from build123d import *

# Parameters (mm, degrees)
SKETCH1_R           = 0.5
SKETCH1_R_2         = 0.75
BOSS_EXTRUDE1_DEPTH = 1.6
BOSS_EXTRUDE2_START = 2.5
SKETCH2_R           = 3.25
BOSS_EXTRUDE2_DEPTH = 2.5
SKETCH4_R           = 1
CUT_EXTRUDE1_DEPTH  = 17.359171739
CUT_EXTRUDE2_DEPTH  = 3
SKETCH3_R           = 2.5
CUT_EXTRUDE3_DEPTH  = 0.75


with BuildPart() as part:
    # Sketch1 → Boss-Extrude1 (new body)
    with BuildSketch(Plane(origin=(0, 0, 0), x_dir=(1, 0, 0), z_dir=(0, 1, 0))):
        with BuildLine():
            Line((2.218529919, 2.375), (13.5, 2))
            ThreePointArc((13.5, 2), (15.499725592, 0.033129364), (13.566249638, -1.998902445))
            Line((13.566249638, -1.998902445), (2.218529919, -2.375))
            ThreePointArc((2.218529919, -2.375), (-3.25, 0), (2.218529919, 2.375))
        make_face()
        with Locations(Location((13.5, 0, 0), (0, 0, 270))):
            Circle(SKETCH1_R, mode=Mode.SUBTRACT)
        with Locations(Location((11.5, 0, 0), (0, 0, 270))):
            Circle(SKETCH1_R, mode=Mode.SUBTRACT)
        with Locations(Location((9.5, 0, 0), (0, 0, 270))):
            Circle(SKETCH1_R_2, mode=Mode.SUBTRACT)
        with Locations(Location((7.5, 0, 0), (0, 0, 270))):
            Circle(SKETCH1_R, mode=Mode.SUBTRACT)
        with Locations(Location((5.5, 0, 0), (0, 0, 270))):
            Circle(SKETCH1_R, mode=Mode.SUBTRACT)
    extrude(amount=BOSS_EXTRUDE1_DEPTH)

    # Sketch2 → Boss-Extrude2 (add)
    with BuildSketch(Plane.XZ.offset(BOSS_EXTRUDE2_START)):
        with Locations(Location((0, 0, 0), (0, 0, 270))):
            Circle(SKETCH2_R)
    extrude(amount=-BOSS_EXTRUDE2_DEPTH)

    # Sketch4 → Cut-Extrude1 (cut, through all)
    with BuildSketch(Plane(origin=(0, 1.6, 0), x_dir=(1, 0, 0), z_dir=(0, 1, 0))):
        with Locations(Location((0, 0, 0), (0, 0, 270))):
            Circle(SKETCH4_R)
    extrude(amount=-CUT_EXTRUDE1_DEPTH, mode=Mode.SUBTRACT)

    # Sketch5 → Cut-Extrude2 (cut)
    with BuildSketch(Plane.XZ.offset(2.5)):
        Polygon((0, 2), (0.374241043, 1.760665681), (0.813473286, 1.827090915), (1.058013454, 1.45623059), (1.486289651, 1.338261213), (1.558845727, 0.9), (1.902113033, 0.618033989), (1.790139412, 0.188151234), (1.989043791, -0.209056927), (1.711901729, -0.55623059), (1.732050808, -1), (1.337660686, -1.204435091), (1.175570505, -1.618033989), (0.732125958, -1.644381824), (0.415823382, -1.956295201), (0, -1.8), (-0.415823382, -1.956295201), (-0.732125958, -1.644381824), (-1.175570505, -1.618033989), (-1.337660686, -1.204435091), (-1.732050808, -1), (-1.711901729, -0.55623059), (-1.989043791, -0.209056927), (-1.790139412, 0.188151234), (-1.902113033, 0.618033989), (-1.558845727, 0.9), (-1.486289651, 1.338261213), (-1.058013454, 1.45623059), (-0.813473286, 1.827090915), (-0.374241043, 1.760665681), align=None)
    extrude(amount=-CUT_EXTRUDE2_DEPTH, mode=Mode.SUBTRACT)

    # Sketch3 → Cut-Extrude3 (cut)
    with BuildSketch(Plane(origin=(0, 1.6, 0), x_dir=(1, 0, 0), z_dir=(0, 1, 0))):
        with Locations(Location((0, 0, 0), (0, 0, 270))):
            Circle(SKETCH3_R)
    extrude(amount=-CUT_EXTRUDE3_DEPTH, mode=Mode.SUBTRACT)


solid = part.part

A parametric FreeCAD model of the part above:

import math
import FreeCAD as App
import Part
import Sketcher

V = App.Vector

doc = App.newDocument("Part")
params = doc.addObject("Spreadsheet::Sheet", "Params")
for row, (alias, value) in enumerate([
    ("sketch1_diameter", "1 mm"),
    ("sketch1_radius", "2 mm"),
    ("sketch1_diameter2", "1.5 mm"),
    ("sketch1_radius2", "3.25 mm"),
    ("pad1_length", "1.6 mm"),
    ("sketch2_diameter", "6.5 mm"),
    ("pad2_length", "2.5 mm"),
    ("sketch3_diameter", "2 mm"),
    ("pocket2_length", "3 mm"),
    ("sketch5_diameter", "5 mm"),
    ("pocket3_length", "0.75 mm"),
], start=1):
    params.set(f"A{row}", alias)
    params.set(f"B{row}", "=" + value)
    params.setAlias(f"B{row}", alias)

body = doc.addObject("PartDesign::Body", "Body")

# Sketch on XZ plane
sketch1 = body.newObject("Sketcher::SketchObject", "Sketch")
sketch1.AttachmentSupport = (doc.getObject("XZ_Plane"), [""])
sketch1.MapMode = "FlatFace"
sketch1.addGeometry([
    Part.LineSegment(V(13.5, -2, 0), V(2.2, -2.4, 0)),  # 0
    Part.ArcOfCircle(Part.Circle(V(0, 0, 0), V(0, 0, 1), 3.2), math.radians(47), math.radians(313)),  # 1
    Part.LineSegment(V(2.2, 2.4, 0), V(13.6, 2, 0)),  # 2
    Part.ArcOfCircle(Part.Circle(V(13.5, 0, 0), V(0, 0, 1), 2), math.radians(-90), math.radians(88)),  # 3
    Part.Circle(V(13.5, 0, 0), V(0, 0, 1), 0.5),  # 4
    Part.Circle(V(11.5, 0, 0), V(0, 0, 1), 0.5),  # 5
    Part.Circle(V(9.5, 0, 0), V(0, 0, 1), 0.8),  # 6
    Part.Circle(V(7.5, 0, 0), V(0, 0, 1), 0.5),  # 7
    Part.Circle(V(5.5, 0, 0), V(0, 0, 1), 0.5),  # 8
], False)
sketch1.addConstraint([
    Sketcher.Constraint("Coincident", 0, 2, 1, 2),
    Sketcher.Constraint("Coincident", 1, 1, 2, 1),
    Sketcher.Constraint("Tangent", 2, 2, 3, 2),
    Sketcher.Constraint("Coincident", 3, 1, 0, 1),
    Sketcher.Constraint("Coincident", 1, 3, -1, 1),
    Sketcher.Constraint("Coincident", 4, 3, 3, 3),
    Sketcher.Constraint("Equal", 4, 5),
    Sketcher.Constraint("Equal", 5, 7),
    Sketcher.Constraint("Equal", 7, 8),
    Sketcher.Constraint("PointOnObject", 3, 3, -1),
    Sketcher.Constraint("PointOnObject", 5, 3, -1),
    Sketcher.Constraint("PointOnObject", 6, 3, -1),
    Sketcher.Constraint("PointOnObject", 7, 3, -1),
    Sketcher.Constraint("PointOnObject", 8, 3, -1),
    Sketcher.Constraint("Vertical", 0, 2, 1, 1),
    Sketcher.Constraint("Vertical", 4, 3, 3, 1),
    Sketcher.Constraint("Diameter", 4, 1.0),
    Sketcher.Constraint("Radius", 3, 2.0),
    Sketcher.Constraint("Diameter", 6, 1.5),
    Sketcher.Constraint("Radius", 1, 3.25),
    Sketcher.Constraint("DistanceX", 5, 3, 3, 3, 2.0),
    Sketcher.Constraint("DistanceX", 6, 3, 5, 3, 2.0),
    Sketcher.Constraint("DistanceX", 7, 3, 6, 3, 2.0),
    Sketcher.Constraint("DistanceX", 8, 3, 7, 3, 2.0),
    Sketcher.Constraint("DistanceX", -1, 1, 3, 3, 13.5),
    Sketcher.Constraint("DistanceY", 0, 2, 1, 1, 4.75),
])
sketch1.setExpression("Constraints[16]", "Params.sketch1_diameter")
sketch1.setExpression("Constraints[17]", "Params.sketch1_radius")
sketch1.setExpression("Constraints[18]", "Params.sketch1_diameter2")
sketch1.setExpression("Constraints[19]", "Params.sketch1_radius2")
pad1 = body.newObject("PartDesign::Pad", "Pad")
pad1.Profile = sketch1
pad1.setExpression("Length", "Params.pad1_length")
pad1.Reversed = True

# Sketch on XZ plane
sketch2 = body.newObject("Sketcher::SketchObject", "Sketch001")
sketch2.AttachmentSupport = (doc.getObject("XZ_Plane"), [""])
sketch2.MapMode = "FlatFace"
sketch2.AttachmentOffset = App.Placement(V(0, 0, 2.5), App.Rotation())
sketch2.addGeometry(Part.Circle(V(0, 0, 0), V(0, 0, 1), 3.2), False)
sketch2.addConstraint([
    Sketcher.Constraint("Coincident", 0, 3, -1, 1),
    Sketcher.Constraint("Diameter", 0, 6.5),
])
sketch2.setExpression("Constraints[1]", "Params.sketch2_diameter")
pad2 = body.newObject("PartDesign::Pad", "Pad001")
pad2.Profile = sketch2
pad2.setExpression("Length", "Params.pad2_length")
pad2.Reversed = True

# Sketch on XZ plane
sketch3 = body.newObject("Sketcher::SketchObject", "Sketch002")
sketch3.AttachmentSupport = (doc.getObject("XZ_Plane"), [""])
sketch3.MapMode = "FlatFace"
sketch3.AttachmentOffset = App.Placement(V(0, 0, -1.6), App.Rotation())
sketch3.addGeometry(Part.Circle(V(0, 0, 0), V(0, 0, 1), 1), False)
sketch3.addConstraint([
    Sketcher.Constraint("Coincident", 0, 3, -1, 1),
    Sketcher.Constraint("Diameter", 0, 2.0),
])
sketch3.setExpression("Constraints[1]", "Params.sketch3_diameter")
pocket1 = body.newObject("PartDesign::Pocket", "Pocket")
pocket1.Profile = sketch3
pocket1.Type = "ThroughAll"
pocket1.Reversed = True

# Sketch on XZ plane
sketch4 = body.newObject("Sketcher::SketchObject", "Sketch003")
sketch4.AttachmentSupport = (doc.getObject("XZ_Plane"), [""])
sketch4.MapMode = "FlatFace"
sketch4.AttachmentOffset = App.Placement(V(0, 0, 2.5), App.Rotation())
sketch4.addGeometry([
    Part.LineSegment(V(0.374241, 1.760666, 0), V(0, 2, 0)),  # 0
    Part.LineSegment(V(0, 2, 0), V(-0.374241, 1.760666, 0)),  # 1
    Part.LineSegment(V(-0.374241, 1.760666, 0), V(-0.813473, 1.827091, 0)),  # 2
    Part.LineSegment(V(-0.813473, 1.827091, 0), V(-1.058013, 1.456231, 0)),  # 3
    Part.LineSegment(V(-1.058013, 1.456231, 0), V(-1.48629, 1.338261, 0)),  # 4
    Part.LineSegment(V(-1.48629, 1.338261, 0), V(-1.558846, 0.9, 0)),  # 5
    Part.LineSegment(V(-1.558846, 0.9, 0), V(-1.902113, 0.618034, 0)),  # 6
    Part.LineSegment(V(-1.902113, 0.618034, 0), V(-1.790139, 0.188151, 0)),  # 7
    Part.LineSegment(V(-1.790139, 0.188151, 0), V(-1.989044, -0.209057, 0)),  # 8
    Part.LineSegment(V(-1.989044, -0.209057, 0), V(-1.711902, -0.556231, 0)),  # 9
    Part.LineSegment(V(-1.711902, -0.556231, 0), V(-1.732051, -1, 0)),  # 10
    Part.LineSegment(V(-1.732051, -1, 0), V(-1.337661, -1.204435, 0)),  # 11
    Part.LineSegment(V(-1.337661, -1.204435, 0), V(-1.175571, -1.618034, 0)),  # 12
    Part.LineSegment(V(-1.175571, -1.618034, 0), V(-0.732126, -1.644382, 0)),  # 13
    Part.LineSegment(V(-0.732126, -1.644382, 0), V(-0.415823, -1.956295, 0)),  # 14
    Part.LineSegment(V(-0.415823, -1.956295, 0), V(0, -1.8, 0)),  # 15
    Part.LineSegment(V(0, -1.8, 0), V(0.415823, -1.956295, 0)),  # 16
    Part.LineSegment(V(0.415823, -1.956295, 0), V(0.732126, -1.644382, 0)),  # 17
    Part.LineSegment(V(0.732126, -1.644382, 0), V(1.175571, -1.618034, 0)),  # 18
    Part.LineSegment(V(1.175571, -1.618034, 0), V(1.337661, -1.204435, 0)),  # 19
    Part.LineSegment(V(1.337661, -1.204435, 0), V(1.732051, -1, 0)),  # 20
    Part.LineSegment(V(1.732051, -1, 0), V(1.711902, -0.556231, 0)),  # 21
    Part.LineSegment(V(1.711902, -0.556231, 0), V(1.989044, -0.209057, 0)),  # 22
    Part.LineSegment(V(1.989044, -0.209057, 0), V(1.790139, 0.188151, 0)),  # 23
    Part.LineSegment(V(1.790139, 0.188151, 0), V(1.902113, 0.618034, 0)),  # 24
    Part.LineSegment(V(1.902113, 0.618034, 0), V(1.558846, 0.9, 0)),  # 25
    Part.LineSegment(V(1.558846, 0.9, 0), V(1.48629, 1.338261, 0)),  # 26
    Part.LineSegment(V(1.48629, 1.338261, 0), V(1.058013, 1.456231, 0)),  # 27
    Part.LineSegment(V(1.058013, 1.456231, 0), V(0.813473, 1.827091, 0)),  # 28
    Part.LineSegment(V(0.813473, 1.827091, 0), V(0.374241, 1.760666, 0)),  # 29
], False)
sketch4.addConstraint([
    Sketcher.Constraint("Coincident", 0, 2, 1, 1),
    Sketcher.Constraint("Coincident", 1, 2, 2, 1),
    Sketcher.Constraint("Coincident", 2, 2, 3, 1),
    Sketcher.Constraint("Coincident", 3, 2, 4, 1),
    Sketcher.Constraint("Coincident", 4, 2, 5, 1),
    Sketcher.Constraint("Coincident", 5, 2, 6, 1),
    Sketcher.Constraint("Coincident", 6, 2, 7, 1),
    Sketcher.Constraint("Coincident", 7, 2, 8, 1),
    Sketcher.Constraint("Coincident", 8, 2, 9, 1),
    Sketcher.Constraint("Coincident", 9, 2, 10, 1),
    Sketcher.Constraint("Coincident", 10, 2, 11, 1),
    Sketcher.Constraint("Coincident", 11, 2, 12, 1),
    Sketcher.Constraint("Coincident", 12, 2, 13, 1),
    Sketcher.Constraint("Coincident", 13, 2, 14, 1),
    Sketcher.Constraint("Coincident", 14, 2, 15, 1),
    Sketcher.Constraint("Coincident", 15, 2, 16, 1),
    Sketcher.Constraint("Coincident", 16, 2, 17, 1),
    Sketcher.Constraint("Coincident", 17, 2, 18, 1),
    Sketcher.Constraint("Coincident", 18, 2, 19, 1),
    Sketcher.Constraint("Coincident", 19, 2, 20, 1),
    Sketcher.Constraint("Coincident", 20, 2, 21, 1),
    Sketcher.Constraint("Coincident", 21, 2, 22, 1),
    Sketcher.Constraint("Coincident", 22, 2, 23, 1),
    Sketcher.Constraint("Coincident", 23, 2, 24, 1),
    Sketcher.Constraint("Coincident", 24, 2, 25, 1),
    Sketcher.Constraint("Coincident", 25, 2, 26, 1),
    Sketcher.Constraint("Coincident", 26, 2, 27, 1),
    Sketcher.Constraint("Coincident", 27, 2, 28, 1),
    Sketcher.Constraint("Coincident", 28, 2, 29, 1),
    Sketcher.Constraint("Coincident", 29, 2, 0, 1),
    Sketcher.Constraint("PointOnObject", 0, 2, -2),
    Sketcher.Constraint("PointOnObject", 15, 2, -2),
    Sketcher.Constraint("DistanceY", -1, 1, 0, 2, 2.0),
    Sketcher.Constraint("DistanceY", 10, 2, -1, 1, 1.0),
    Sketcher.Constraint("DistanceY", 20, 2, -1, 1, 1.0),
    Sketcher.Constraint("DistanceY", -1, 1, 5, 2, 0.9),
    Sketcher.Constraint("DistanceY", 15, 2, -1, 1, 1.8),
    Sketcher.Constraint("DistanceY", -1, 1, 25, 2, 0.9),
    Sketcher.Constraint("DistanceX", 9, 2, -1, 1, 1.711902),
    Sketcher.Constraint("DistanceX", -1, 1, 21, 2, 1.711902),
    Sketcher.Constraint("DistanceX", 6, 2, 3, 2, 0.8441),
    Sketcher.Constraint("DistanceX", 8, 2, 5, 2, 0.430198),
    Sketcher.Constraint("DistanceY", 12, 2, 11, 2, 0.413599),
    Sketcher.Constraint("DistanceY", 18, 2, 19, 2, 0.413599),
    Sketcher.Constraint("DistanceX", 25, 2, 22, 2, 0.430198),
    Sketcher.Constraint("DistanceX", 27, 2, 24, 2, 0.8441),
    Sketcher.Constraint("DistanceX", 1, 2, -1, 1, 0.374241),
    Sketcher.Constraint("DistanceY", -1, 1, 2, 2, 1.827091),
    Sketcher.Constraint("DistanceY", -1, 1, 3, 2, 1.456231),
    Sketcher.Constraint("DistanceX", 4, 2, -1, 1, 1.48629),
    Sketcher.Constraint("DistanceY", -1, 1, 4, 2, 1.338261),
    Sketcher.Constraint("DistanceX", 7, 2, -1, 1, 1.790139),
    Sketcher.Constraint("DistanceY", -1, 1, 7, 2, 0.188151),
    Sketcher.Constraint("DistanceY", 9, 2, -1, 1, 0.556231),
    Sketcher.Constraint("DistanceX", 10, 2, -1, 1, 1.732051),
    Sketcher.Constraint("DistanceX", 11, 2, -1, 1, 1.337661),
    Sketcher.Constraint("DistanceX", 12, 2, -1, 1, 1.175571),
    Sketcher.Constraint("DistanceY", 13, 2, -1, 1, 1.644382),
    Sketcher.Constraint("DistanceY", 17, 2, -1, 1, 1.644382),
    Sketcher.Constraint("DistanceX", -1, 1, 18, 2, 1.175571),
    Sketcher.Constraint("DistanceX", -1, 1, 19, 2, 1.337661),
    Sketcher.Constraint("DistanceX", -1, 1, 20, 2, 1.732051),
    Sketcher.Constraint("DistanceY", 21, 2, -1, 1, 0.556231),
    Sketcher.Constraint("DistanceX", -1, 1, 23, 2, 1.790139),
    Sketcher.Constraint("DistanceY", -1, 1, 23, 2, 0.188151),
    Sketcher.Constraint("DistanceX", -1, 1, 26, 2, 1.48629),
    Sketcher.Constraint("DistanceY", -1, 1, 26, 2, 1.338261),
    Sketcher.Constraint("DistanceY", -1, 1, 27, 2, 1.456231),
    Sketcher.Constraint("DistanceY", -1, 1, 28, 2, 1.827091),
    Sketcher.Constraint("DistanceX", -1, 1, 29, 2, 0.374241),
    Sketcher.Constraint("DistanceX", 3, 2, 2, 2, 0.24454),
    Sketcher.Constraint("DistanceX", 6, 2, 1, 2, 1.527872),
    Sketcher.Constraint("DistanceY", 6, 2, 1, 2, 1.142632),
    Sketcher.Constraint("DistanceY", 8, 2, 7, 2, 0.397208),
    Sketcher.Constraint("DistanceX", 8, 2, 6, 2, 0.086931),
    Sketcher.Constraint("DistanceY", 8, 2, 6, 2, 0.827091),
    Sketcher.Constraint("DistanceY", 11, 2, 8, 2, 0.995378),
    Sketcher.Constraint("DistanceY", 14, 2, 12, 2, 0.338261),
    Sketcher.Constraint("DistanceX", 9, 2, 14, 2, 1.296078),
    Sketcher.Constraint("DistanceX", 13, 2, 16, 2, 1.147949),
    Sketcher.Constraint("DistanceY", 16, 2, 12, 2, 0.338261),
    Sketcher.Constraint("DistanceX", 14, 2, 17, 2, 1.147949),
    Sketcher.Constraint("DistanceX", 13, 2, 17, 2, 1.464252),
    Sketcher.Constraint("DistanceY", 16, 2, 18, 2, 0.338261),
    Sketcher.Constraint("DistanceY", 19, 2, 22, 2, 0.995378),
    Sketcher.Constraint("DistanceX", 24, 2, 22, 2, 0.086931),
    Sketcher.Constraint("DistanceY", 22, 2, 24, 2, 0.827091),
    Sketcher.Constraint("DistanceX", 21, 2, 24, 2, 0.190211),
    Sketcher.Constraint("DistanceX", 28, 2, 27, 2, 0.24454),
    Sketcher.Constraint("Distance", 0, 0.444227),
])
pocket2 = body.newObject("PartDesign::Pocket", "Pocket001")
pocket2.Profile = sketch4
pocket2.setExpression("Length", "Params.pocket2_length")

# Sketch on XZ plane
sketch5 = body.newObject("Sketcher::SketchObject", "Sketch004")
sketch5.AttachmentSupport = (doc.getObject("XZ_Plane"), [""])
sketch5.MapMode = "FlatFace"
sketch5.AttachmentOffset = App.Placement(V(0, 0, -1.6), App.Rotation())
sketch5.addGeometry(Part.Circle(V(0, 0, 0), V(0, 0, 1), 2.5), False)
sketch5.addConstraint([
    Sketcher.Constraint("Coincident", 0, 3, -1, 1),
    Sketcher.Constraint("Diameter", 0, 5.0),
])
sketch5.setExpression("Constraints[1]", "Params.sketch5_diameter")
pocket3 = body.newObject("PartDesign::Pocket", "Pocket002")
pocket3.Profile = sketch5
pocket3.setExpression("Length", "Params.pocket3_length")
pocket3.Reversed = True

doc.recompute()
